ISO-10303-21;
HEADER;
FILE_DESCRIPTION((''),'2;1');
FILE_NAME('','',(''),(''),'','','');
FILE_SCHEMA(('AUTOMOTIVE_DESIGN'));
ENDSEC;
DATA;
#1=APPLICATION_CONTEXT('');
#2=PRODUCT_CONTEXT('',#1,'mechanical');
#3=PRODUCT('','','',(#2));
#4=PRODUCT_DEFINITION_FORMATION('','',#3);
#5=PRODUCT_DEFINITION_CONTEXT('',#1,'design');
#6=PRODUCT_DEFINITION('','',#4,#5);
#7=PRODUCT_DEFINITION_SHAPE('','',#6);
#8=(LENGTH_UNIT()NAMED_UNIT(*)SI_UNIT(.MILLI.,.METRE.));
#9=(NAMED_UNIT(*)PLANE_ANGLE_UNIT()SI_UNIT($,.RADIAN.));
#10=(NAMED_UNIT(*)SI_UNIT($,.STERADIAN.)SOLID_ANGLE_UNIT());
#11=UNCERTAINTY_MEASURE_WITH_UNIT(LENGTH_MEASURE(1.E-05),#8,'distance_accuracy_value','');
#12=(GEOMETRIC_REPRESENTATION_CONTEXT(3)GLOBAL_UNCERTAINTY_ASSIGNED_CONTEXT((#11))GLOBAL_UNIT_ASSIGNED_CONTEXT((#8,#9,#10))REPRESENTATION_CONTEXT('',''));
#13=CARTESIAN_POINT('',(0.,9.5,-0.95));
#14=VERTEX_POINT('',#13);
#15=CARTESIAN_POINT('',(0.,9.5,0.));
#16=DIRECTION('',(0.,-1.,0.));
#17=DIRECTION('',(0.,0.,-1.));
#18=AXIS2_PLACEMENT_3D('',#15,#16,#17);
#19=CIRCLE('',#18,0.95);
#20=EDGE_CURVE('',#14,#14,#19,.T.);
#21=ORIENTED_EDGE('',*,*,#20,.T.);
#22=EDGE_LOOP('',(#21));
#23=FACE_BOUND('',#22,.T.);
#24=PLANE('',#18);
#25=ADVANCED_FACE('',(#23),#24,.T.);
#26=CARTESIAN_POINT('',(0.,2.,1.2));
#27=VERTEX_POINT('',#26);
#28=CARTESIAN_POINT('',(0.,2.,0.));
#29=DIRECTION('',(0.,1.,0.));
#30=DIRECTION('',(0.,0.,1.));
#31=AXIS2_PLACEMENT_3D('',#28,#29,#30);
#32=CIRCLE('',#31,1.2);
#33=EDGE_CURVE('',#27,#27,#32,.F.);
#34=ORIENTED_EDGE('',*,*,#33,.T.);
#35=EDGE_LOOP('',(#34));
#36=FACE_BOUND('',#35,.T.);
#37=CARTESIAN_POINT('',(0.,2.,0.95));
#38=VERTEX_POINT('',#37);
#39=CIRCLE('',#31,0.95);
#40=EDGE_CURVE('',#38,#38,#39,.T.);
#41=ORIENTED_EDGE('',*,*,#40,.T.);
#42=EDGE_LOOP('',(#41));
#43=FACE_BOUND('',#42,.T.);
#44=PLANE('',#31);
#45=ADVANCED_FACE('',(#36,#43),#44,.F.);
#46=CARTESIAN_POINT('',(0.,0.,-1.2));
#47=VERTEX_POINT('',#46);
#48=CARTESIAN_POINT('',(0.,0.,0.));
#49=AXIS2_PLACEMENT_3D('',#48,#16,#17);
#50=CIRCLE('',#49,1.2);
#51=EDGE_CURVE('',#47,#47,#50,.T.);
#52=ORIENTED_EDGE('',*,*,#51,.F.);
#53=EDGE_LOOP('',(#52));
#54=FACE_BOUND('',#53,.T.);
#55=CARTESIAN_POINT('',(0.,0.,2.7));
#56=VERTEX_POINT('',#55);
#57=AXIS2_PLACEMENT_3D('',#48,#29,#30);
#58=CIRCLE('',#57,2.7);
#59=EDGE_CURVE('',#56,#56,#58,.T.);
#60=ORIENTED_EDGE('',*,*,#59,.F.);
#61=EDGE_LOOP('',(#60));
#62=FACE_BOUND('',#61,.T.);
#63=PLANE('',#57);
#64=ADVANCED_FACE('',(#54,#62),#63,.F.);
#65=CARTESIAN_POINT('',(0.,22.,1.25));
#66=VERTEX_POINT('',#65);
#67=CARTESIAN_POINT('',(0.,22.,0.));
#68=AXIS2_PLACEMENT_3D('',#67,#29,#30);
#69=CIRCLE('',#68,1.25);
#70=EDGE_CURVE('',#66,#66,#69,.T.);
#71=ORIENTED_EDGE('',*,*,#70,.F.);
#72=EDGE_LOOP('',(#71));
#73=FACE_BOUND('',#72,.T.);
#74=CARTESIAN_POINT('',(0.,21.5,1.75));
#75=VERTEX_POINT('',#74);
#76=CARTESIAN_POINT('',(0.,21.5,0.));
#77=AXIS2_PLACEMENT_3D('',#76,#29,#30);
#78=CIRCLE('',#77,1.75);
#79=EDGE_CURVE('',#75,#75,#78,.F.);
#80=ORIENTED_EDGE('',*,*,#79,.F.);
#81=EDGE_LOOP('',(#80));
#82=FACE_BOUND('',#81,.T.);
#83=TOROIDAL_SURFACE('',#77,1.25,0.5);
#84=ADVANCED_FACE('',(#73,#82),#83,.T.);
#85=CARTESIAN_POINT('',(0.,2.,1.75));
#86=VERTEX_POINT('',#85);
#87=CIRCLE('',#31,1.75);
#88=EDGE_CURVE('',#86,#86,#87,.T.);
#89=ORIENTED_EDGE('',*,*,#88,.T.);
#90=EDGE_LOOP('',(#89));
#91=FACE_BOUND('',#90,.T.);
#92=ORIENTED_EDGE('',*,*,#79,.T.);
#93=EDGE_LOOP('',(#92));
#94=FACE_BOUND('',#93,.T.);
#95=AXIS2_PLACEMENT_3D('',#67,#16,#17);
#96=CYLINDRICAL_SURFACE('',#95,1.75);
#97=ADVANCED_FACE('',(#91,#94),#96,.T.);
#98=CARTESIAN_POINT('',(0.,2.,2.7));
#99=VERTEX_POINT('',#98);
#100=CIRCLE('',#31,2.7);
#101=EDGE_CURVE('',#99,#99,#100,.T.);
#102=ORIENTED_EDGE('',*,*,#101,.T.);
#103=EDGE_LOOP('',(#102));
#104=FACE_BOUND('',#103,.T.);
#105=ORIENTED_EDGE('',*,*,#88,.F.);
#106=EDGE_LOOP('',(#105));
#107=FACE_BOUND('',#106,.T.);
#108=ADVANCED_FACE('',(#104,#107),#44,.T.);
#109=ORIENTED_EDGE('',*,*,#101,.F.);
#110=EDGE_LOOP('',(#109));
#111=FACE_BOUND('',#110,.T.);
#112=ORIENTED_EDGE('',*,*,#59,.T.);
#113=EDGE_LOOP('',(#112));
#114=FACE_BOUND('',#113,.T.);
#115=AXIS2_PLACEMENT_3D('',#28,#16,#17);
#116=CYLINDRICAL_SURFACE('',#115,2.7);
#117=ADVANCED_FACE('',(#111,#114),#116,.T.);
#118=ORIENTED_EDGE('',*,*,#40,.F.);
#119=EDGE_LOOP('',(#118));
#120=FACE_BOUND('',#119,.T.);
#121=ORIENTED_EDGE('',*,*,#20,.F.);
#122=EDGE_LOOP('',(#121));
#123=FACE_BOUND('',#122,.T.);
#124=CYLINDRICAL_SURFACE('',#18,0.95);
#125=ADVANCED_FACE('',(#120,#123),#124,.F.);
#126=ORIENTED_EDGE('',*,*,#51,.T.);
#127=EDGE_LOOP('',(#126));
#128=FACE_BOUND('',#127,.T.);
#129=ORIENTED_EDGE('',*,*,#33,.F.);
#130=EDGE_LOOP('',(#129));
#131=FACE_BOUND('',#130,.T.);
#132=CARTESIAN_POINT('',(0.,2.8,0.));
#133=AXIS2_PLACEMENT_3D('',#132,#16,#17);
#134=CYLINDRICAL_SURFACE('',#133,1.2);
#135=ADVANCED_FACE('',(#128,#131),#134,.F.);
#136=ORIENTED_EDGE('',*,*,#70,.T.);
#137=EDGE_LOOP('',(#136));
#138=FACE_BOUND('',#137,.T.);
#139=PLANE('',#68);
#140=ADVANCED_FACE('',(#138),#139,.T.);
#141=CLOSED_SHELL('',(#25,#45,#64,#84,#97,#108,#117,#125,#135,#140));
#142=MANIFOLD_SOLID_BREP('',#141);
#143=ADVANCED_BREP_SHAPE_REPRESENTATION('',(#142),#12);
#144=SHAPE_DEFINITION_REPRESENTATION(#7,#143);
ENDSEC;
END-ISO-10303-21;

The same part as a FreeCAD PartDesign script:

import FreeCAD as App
import Part
import Sketcher
Q = App.Units.Quantity


def edges_at(feature, points):
    """Names of the edges that pass closest to the given points."""
    edges = feature.Shape.Edges
    near = lambda p: min(range(len(edges)), key=lambda i: edges[i].distToShape(Part.Vertex(*p))[0])
    return sorted({f"Edge{near(p) + 1}" for p in points})

doc = App.newDocument("Part")
params = doc.addObject("Spreadsheet::Sheet", "Params")
for row, (alias, value) in enumerate([
    ("sketch1_diameter", "5.4 mm"),
    ("pad1_length", "2 mm"),
    ("sketch2_diameter", "1.9 mm"),
    ("pocket1_length", "9.5 mm"),
    ("sketch3_diameter", "2.4 mm"),
    ("pocket2_length", "2.8 mm"),
    ("sketch4_diameter", "3.5 mm"),
    ("pad2_length", "20 mm"),
    ("fillet_radius", "0.5 mm"),
    ("sketch5_diameter", "1.9 mm"),
    ("pocket3_length", "9.5 mm"),
], start=1):
    params.set(f"A{row}", alias)
    params.set(f"B{row}", "=" + value)
    params.setAlias(f"B{row}", alias)

body = doc.addObject("PartDesign::Body", "Body")

sketch1 = body.newObject("Sketcher::SketchObject", "Sketch")
sketch1.AttachmentSupport = (doc.getObject("XZ_Plane"), [""])
sketch1.MapMode = "FlatFace"
sketch1.addGeometry(Part.Circle(App.Vector(0, 0, 0), App.Vector(0, 0, 1), 2.7), False)
sketch1.addConstraint([
    Sketcher.Constraint("Coincident", 0, 3, -1, 1),
    Sketcher.Constraint("Diameter", 0, Q("5.4 mm")),
])
sketch1.setExpression("Constraints[1]", "Params.sketch1_diameter")
pad1 = body.newObject("PartDesign::Pad", "Pad")
pad1.Profile = sketch1
pad1.setExpression("Length", "Params.pad1_length")
pad1.Reversed = True

sketch2 = body.newObject("Sketcher::SketchObject", "Sketch001")
sketch2.AttachmentSupport = (doc.getObject("XZ_Plane"), [""])
sketch2.MapMode = "FlatFace"
sketch2.addGeometry(Part.Circle(App.Vector(0, 0, 0), App.Vector(0, 0, 1), 0.9), False)
sketch2.addConstraint([
    Sketcher.Constraint("Coincident", 0, 3, -1, 1),
    Sketcher.Constraint("Diameter", 0, Q("1.9 mm")),
])
sketch2.setExpression("Constraints[1]", "Params.sketch2_diameter")
pocket1 = body.newObject("PartDesign::Pocket", "Pocket")
pocket1.Profile = sketch2
pocket1.setExpression("Length", "Params.pocket1_length")

sketch3 = body.newObject("Sketcher::SketchObject", "Sketch002")
sketch3.AttachmentSupport = (doc.getObject("XZ_Plane"), [""])
sketch3.MapMode = "FlatFace"
sketch3.addGeometry(Part.Circle(App.Vector(0, 0, 0), App.Vector(0, 0, 1), 1.2), False)
sketch3.addConstraint([
    Sketcher.Constraint("Coincident", 0, 3, -1, 1),
    Sketcher.Constraint("Diameter", 0, Q("2.4 mm")),
])
sketch3.setExpression("Constraints[1]", "Params.sketch3_diameter")
pocket2 = body.newObject("PartDesign::Pocket", "Pocket001")
pocket2.Profile = sketch3
pocket2.setExpression("Length", "Params.pocket2_length")

sketch4 = body.newObject("Sketcher::SketchObject", "Sketch003")
sketch4.AttachmentSupport = (doc.getObject("XZ_Plane"), [""])
sketch4.MapMode = "FlatFace"
sketch4.AttachmentOffset = App.Placement(App.Vector(0, 0, -2), App.Rotation())
sketch4.addGeometry(Part.Circle(App.Vector(0, 0, 0), App.Vector(0, 0, 1), 1.8), False)
sketch4.addConstraint([
    Sketcher.Constraint("Coincident", 0, 3, -1, 1),
    Sketcher.Constraint("Diameter", 0, Q("3.5 mm")),
])
sketch4.setExpression("Constraints[1]", "Params.sketch4_diameter")
pad2 = body.newObject("PartDesign::Pad", "Pad001")
pad2.Profile = sketch4
pad2.setExpression("Length", "Params.pad2_length")
pad2.Reversed = True
doc.recompute()

fillet = body.newObject("PartDesign::Fillet", "Fillet")
fillet.Base = (pad2, edges_at(pad2, [(0, 22, -1.75)]))
fillet.setExpression("Radius", "Params.fillet_radius")

sketch5 = body.newObject("Sketcher::SketchObject", "Sketch004")
sketch5.AttachmentSupport = (doc.getObject("XZ_Plane"), [""])
sketch5.MapMode = "FlatFace"
sketch5.addGeometry(Part.Circle(App.Vector(0, 0, 0), App.Vector(0, 0, 1), 0.9), False)
sketch5.addConstraint([
    Sketcher.Constraint("Coincident", 0, 3, -1, 1),
    Sketcher.Constraint("Diameter", 0, Q("1.9 mm")),
])
sketch5.setExpression("Constraints[1]", "Params.sketch5_diameter")
pocket3 = body.newObject("PartDesign::Pocket", "Pocket002")
pocket3.Profile = sketch5
pocket3.setExpression("Length", "Params.pocket3_length")

doc.recompute()
